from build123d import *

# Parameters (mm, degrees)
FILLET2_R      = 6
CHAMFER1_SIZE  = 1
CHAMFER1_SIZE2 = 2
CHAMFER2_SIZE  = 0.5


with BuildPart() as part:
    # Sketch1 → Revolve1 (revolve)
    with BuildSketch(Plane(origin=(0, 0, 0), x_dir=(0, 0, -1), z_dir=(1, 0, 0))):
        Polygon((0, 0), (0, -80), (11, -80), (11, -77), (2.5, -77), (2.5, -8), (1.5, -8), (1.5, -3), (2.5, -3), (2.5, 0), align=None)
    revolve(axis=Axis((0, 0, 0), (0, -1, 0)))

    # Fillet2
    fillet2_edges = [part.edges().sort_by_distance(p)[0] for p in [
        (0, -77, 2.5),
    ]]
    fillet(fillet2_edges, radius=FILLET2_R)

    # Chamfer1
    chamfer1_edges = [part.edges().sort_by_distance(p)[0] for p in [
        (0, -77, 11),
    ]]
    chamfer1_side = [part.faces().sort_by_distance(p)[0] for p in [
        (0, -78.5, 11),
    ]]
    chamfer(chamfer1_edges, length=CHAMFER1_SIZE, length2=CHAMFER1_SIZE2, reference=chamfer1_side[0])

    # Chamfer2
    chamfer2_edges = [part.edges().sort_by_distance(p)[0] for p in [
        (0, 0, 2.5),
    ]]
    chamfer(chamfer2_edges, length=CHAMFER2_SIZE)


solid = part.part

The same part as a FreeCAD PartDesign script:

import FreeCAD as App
import Part
import Sketcher

V = App.Vector


def edges_at(feature, points):
    """Names of the edges that pass closest to the given points."""
    edges = feature.Shape.Edges
    near = lambda p: min(range(len(edges)), key=lambda i: edges[i].distToShape(Part.Vertex(*p))[0])
    return sorted({f"Edge{near(p) + 1}" for p in points})


def add_polygon(sketch, points):
    """Adds a closed chain of lines whose ends are joined by coincident constraints."""
    first, n = sketch.GeometryCount, len(points)
    for a, b in zip(points, points[1:] + points[:1]):
        sketch.addGeometry(Part.LineSegment(App.Vector(*a, 0), App.Vector(*b, 0)), False)
    for i in range(n):
        sketch.addConstraint(Sketcher.Constraint("Coincident", first + i, 2, first + (i + 1) % n, 1))

doc = App.newDocument("Part")
body = doc.addObject("PartDesign::Body", "Body")

# Sketch on YZ plane
sketch1 = body.newObject("Sketcher::SketchObject", "Sketch")
sketch1.AttachmentSupport = (doc.getObject("YZ_Plane"), [""])
sketch1.MapMode = "FlatFace"
add_polygon(sketch1, [(0, 0), (-80, 0), (-80, -11), (-77, -11), (-77, -2.5), (-8, -2.5), (-8, -1.5), (-3, -1.5), (-3, -2.5), (0, -2.5)])  # lines 0-9
sketch1.addConstraint([
    Sketcher.Constraint("Horizontal", 0),
    Sketcher.Constraint("Vertical", 1),
    Sketcher.Constraint("Horizontal", 2),
    Sketcher.Constraint("Vertical", 3),
    Sketcher.Constraint("Horizontal", 4),
    Sketcher.Constraint("Vertical", 5),
    Sketcher.Constraint("Horizontal", 6),
    Sketcher.Constraint("Vertical", 7),
    Sketcher.Constraint("Horizontal", 8),
    Sketcher.Constraint("Vertical", 9),
    Sketcher.Constraint("Coincident", 9, 2, -1, 1),
    Sketcher.Constraint("Horizontal", 4, 2, 7, 2),
    Sketcher.Constraint("Equal", 2, 8),
    Sketcher.Constraint("DistanceX", 0, 2, 0, 1, 80.0),
    Sketcher.Constraint("DistanceX", 2, 1, 2, 2, 3.0),
    Sketcher.Constraint("DistanceX", 4, 1, 4, 2, 69.0),
    Sketcher.Constraint("DistanceY", 1, 2, 1, 1, 11.0),
    Sketcher.Constraint("DistanceY", 5, 1, 5, 2, 1.0),
    Sketcher.Constraint("DistanceY", 3, 1, 3, 2, 8.5),
])
revolution = body.newObject("PartDesign::Revolution", "Revolution")
revolution.Profile = sketch1
revolution.ReferenceAxis = (sketch1, ["H_Axis"])
revolution.Angle = 360
doc.recompute()

fillet = body.newObject("PartDesign::Fillet", "Fillet")
fillet.Base = (revolution, edges_at(revolution, [(0, -77, 2.5)]))
fillet.Radius = 6
doc.recompute()

chamfer = body.newObject("PartDesign::Chamfer", "Chamfer")
chamfer.Base = (fillet, edges_at(fillet, [(0, -77, 11)]))
chamfer.ChamferType = "Two distances"
chamfer.Size = 1
chamfer.Size2 = 2
chamfer.FlipDirection = True
doc.recompute()

chamfer2 = body.newObject("PartDesign::Chamfer", "Chamfer001")
chamfer2.Base = (chamfer, edges_at(chamfer, [(0, 0, 2.5)]))
chamfer2.Size = 0.5

doc.recompute()
